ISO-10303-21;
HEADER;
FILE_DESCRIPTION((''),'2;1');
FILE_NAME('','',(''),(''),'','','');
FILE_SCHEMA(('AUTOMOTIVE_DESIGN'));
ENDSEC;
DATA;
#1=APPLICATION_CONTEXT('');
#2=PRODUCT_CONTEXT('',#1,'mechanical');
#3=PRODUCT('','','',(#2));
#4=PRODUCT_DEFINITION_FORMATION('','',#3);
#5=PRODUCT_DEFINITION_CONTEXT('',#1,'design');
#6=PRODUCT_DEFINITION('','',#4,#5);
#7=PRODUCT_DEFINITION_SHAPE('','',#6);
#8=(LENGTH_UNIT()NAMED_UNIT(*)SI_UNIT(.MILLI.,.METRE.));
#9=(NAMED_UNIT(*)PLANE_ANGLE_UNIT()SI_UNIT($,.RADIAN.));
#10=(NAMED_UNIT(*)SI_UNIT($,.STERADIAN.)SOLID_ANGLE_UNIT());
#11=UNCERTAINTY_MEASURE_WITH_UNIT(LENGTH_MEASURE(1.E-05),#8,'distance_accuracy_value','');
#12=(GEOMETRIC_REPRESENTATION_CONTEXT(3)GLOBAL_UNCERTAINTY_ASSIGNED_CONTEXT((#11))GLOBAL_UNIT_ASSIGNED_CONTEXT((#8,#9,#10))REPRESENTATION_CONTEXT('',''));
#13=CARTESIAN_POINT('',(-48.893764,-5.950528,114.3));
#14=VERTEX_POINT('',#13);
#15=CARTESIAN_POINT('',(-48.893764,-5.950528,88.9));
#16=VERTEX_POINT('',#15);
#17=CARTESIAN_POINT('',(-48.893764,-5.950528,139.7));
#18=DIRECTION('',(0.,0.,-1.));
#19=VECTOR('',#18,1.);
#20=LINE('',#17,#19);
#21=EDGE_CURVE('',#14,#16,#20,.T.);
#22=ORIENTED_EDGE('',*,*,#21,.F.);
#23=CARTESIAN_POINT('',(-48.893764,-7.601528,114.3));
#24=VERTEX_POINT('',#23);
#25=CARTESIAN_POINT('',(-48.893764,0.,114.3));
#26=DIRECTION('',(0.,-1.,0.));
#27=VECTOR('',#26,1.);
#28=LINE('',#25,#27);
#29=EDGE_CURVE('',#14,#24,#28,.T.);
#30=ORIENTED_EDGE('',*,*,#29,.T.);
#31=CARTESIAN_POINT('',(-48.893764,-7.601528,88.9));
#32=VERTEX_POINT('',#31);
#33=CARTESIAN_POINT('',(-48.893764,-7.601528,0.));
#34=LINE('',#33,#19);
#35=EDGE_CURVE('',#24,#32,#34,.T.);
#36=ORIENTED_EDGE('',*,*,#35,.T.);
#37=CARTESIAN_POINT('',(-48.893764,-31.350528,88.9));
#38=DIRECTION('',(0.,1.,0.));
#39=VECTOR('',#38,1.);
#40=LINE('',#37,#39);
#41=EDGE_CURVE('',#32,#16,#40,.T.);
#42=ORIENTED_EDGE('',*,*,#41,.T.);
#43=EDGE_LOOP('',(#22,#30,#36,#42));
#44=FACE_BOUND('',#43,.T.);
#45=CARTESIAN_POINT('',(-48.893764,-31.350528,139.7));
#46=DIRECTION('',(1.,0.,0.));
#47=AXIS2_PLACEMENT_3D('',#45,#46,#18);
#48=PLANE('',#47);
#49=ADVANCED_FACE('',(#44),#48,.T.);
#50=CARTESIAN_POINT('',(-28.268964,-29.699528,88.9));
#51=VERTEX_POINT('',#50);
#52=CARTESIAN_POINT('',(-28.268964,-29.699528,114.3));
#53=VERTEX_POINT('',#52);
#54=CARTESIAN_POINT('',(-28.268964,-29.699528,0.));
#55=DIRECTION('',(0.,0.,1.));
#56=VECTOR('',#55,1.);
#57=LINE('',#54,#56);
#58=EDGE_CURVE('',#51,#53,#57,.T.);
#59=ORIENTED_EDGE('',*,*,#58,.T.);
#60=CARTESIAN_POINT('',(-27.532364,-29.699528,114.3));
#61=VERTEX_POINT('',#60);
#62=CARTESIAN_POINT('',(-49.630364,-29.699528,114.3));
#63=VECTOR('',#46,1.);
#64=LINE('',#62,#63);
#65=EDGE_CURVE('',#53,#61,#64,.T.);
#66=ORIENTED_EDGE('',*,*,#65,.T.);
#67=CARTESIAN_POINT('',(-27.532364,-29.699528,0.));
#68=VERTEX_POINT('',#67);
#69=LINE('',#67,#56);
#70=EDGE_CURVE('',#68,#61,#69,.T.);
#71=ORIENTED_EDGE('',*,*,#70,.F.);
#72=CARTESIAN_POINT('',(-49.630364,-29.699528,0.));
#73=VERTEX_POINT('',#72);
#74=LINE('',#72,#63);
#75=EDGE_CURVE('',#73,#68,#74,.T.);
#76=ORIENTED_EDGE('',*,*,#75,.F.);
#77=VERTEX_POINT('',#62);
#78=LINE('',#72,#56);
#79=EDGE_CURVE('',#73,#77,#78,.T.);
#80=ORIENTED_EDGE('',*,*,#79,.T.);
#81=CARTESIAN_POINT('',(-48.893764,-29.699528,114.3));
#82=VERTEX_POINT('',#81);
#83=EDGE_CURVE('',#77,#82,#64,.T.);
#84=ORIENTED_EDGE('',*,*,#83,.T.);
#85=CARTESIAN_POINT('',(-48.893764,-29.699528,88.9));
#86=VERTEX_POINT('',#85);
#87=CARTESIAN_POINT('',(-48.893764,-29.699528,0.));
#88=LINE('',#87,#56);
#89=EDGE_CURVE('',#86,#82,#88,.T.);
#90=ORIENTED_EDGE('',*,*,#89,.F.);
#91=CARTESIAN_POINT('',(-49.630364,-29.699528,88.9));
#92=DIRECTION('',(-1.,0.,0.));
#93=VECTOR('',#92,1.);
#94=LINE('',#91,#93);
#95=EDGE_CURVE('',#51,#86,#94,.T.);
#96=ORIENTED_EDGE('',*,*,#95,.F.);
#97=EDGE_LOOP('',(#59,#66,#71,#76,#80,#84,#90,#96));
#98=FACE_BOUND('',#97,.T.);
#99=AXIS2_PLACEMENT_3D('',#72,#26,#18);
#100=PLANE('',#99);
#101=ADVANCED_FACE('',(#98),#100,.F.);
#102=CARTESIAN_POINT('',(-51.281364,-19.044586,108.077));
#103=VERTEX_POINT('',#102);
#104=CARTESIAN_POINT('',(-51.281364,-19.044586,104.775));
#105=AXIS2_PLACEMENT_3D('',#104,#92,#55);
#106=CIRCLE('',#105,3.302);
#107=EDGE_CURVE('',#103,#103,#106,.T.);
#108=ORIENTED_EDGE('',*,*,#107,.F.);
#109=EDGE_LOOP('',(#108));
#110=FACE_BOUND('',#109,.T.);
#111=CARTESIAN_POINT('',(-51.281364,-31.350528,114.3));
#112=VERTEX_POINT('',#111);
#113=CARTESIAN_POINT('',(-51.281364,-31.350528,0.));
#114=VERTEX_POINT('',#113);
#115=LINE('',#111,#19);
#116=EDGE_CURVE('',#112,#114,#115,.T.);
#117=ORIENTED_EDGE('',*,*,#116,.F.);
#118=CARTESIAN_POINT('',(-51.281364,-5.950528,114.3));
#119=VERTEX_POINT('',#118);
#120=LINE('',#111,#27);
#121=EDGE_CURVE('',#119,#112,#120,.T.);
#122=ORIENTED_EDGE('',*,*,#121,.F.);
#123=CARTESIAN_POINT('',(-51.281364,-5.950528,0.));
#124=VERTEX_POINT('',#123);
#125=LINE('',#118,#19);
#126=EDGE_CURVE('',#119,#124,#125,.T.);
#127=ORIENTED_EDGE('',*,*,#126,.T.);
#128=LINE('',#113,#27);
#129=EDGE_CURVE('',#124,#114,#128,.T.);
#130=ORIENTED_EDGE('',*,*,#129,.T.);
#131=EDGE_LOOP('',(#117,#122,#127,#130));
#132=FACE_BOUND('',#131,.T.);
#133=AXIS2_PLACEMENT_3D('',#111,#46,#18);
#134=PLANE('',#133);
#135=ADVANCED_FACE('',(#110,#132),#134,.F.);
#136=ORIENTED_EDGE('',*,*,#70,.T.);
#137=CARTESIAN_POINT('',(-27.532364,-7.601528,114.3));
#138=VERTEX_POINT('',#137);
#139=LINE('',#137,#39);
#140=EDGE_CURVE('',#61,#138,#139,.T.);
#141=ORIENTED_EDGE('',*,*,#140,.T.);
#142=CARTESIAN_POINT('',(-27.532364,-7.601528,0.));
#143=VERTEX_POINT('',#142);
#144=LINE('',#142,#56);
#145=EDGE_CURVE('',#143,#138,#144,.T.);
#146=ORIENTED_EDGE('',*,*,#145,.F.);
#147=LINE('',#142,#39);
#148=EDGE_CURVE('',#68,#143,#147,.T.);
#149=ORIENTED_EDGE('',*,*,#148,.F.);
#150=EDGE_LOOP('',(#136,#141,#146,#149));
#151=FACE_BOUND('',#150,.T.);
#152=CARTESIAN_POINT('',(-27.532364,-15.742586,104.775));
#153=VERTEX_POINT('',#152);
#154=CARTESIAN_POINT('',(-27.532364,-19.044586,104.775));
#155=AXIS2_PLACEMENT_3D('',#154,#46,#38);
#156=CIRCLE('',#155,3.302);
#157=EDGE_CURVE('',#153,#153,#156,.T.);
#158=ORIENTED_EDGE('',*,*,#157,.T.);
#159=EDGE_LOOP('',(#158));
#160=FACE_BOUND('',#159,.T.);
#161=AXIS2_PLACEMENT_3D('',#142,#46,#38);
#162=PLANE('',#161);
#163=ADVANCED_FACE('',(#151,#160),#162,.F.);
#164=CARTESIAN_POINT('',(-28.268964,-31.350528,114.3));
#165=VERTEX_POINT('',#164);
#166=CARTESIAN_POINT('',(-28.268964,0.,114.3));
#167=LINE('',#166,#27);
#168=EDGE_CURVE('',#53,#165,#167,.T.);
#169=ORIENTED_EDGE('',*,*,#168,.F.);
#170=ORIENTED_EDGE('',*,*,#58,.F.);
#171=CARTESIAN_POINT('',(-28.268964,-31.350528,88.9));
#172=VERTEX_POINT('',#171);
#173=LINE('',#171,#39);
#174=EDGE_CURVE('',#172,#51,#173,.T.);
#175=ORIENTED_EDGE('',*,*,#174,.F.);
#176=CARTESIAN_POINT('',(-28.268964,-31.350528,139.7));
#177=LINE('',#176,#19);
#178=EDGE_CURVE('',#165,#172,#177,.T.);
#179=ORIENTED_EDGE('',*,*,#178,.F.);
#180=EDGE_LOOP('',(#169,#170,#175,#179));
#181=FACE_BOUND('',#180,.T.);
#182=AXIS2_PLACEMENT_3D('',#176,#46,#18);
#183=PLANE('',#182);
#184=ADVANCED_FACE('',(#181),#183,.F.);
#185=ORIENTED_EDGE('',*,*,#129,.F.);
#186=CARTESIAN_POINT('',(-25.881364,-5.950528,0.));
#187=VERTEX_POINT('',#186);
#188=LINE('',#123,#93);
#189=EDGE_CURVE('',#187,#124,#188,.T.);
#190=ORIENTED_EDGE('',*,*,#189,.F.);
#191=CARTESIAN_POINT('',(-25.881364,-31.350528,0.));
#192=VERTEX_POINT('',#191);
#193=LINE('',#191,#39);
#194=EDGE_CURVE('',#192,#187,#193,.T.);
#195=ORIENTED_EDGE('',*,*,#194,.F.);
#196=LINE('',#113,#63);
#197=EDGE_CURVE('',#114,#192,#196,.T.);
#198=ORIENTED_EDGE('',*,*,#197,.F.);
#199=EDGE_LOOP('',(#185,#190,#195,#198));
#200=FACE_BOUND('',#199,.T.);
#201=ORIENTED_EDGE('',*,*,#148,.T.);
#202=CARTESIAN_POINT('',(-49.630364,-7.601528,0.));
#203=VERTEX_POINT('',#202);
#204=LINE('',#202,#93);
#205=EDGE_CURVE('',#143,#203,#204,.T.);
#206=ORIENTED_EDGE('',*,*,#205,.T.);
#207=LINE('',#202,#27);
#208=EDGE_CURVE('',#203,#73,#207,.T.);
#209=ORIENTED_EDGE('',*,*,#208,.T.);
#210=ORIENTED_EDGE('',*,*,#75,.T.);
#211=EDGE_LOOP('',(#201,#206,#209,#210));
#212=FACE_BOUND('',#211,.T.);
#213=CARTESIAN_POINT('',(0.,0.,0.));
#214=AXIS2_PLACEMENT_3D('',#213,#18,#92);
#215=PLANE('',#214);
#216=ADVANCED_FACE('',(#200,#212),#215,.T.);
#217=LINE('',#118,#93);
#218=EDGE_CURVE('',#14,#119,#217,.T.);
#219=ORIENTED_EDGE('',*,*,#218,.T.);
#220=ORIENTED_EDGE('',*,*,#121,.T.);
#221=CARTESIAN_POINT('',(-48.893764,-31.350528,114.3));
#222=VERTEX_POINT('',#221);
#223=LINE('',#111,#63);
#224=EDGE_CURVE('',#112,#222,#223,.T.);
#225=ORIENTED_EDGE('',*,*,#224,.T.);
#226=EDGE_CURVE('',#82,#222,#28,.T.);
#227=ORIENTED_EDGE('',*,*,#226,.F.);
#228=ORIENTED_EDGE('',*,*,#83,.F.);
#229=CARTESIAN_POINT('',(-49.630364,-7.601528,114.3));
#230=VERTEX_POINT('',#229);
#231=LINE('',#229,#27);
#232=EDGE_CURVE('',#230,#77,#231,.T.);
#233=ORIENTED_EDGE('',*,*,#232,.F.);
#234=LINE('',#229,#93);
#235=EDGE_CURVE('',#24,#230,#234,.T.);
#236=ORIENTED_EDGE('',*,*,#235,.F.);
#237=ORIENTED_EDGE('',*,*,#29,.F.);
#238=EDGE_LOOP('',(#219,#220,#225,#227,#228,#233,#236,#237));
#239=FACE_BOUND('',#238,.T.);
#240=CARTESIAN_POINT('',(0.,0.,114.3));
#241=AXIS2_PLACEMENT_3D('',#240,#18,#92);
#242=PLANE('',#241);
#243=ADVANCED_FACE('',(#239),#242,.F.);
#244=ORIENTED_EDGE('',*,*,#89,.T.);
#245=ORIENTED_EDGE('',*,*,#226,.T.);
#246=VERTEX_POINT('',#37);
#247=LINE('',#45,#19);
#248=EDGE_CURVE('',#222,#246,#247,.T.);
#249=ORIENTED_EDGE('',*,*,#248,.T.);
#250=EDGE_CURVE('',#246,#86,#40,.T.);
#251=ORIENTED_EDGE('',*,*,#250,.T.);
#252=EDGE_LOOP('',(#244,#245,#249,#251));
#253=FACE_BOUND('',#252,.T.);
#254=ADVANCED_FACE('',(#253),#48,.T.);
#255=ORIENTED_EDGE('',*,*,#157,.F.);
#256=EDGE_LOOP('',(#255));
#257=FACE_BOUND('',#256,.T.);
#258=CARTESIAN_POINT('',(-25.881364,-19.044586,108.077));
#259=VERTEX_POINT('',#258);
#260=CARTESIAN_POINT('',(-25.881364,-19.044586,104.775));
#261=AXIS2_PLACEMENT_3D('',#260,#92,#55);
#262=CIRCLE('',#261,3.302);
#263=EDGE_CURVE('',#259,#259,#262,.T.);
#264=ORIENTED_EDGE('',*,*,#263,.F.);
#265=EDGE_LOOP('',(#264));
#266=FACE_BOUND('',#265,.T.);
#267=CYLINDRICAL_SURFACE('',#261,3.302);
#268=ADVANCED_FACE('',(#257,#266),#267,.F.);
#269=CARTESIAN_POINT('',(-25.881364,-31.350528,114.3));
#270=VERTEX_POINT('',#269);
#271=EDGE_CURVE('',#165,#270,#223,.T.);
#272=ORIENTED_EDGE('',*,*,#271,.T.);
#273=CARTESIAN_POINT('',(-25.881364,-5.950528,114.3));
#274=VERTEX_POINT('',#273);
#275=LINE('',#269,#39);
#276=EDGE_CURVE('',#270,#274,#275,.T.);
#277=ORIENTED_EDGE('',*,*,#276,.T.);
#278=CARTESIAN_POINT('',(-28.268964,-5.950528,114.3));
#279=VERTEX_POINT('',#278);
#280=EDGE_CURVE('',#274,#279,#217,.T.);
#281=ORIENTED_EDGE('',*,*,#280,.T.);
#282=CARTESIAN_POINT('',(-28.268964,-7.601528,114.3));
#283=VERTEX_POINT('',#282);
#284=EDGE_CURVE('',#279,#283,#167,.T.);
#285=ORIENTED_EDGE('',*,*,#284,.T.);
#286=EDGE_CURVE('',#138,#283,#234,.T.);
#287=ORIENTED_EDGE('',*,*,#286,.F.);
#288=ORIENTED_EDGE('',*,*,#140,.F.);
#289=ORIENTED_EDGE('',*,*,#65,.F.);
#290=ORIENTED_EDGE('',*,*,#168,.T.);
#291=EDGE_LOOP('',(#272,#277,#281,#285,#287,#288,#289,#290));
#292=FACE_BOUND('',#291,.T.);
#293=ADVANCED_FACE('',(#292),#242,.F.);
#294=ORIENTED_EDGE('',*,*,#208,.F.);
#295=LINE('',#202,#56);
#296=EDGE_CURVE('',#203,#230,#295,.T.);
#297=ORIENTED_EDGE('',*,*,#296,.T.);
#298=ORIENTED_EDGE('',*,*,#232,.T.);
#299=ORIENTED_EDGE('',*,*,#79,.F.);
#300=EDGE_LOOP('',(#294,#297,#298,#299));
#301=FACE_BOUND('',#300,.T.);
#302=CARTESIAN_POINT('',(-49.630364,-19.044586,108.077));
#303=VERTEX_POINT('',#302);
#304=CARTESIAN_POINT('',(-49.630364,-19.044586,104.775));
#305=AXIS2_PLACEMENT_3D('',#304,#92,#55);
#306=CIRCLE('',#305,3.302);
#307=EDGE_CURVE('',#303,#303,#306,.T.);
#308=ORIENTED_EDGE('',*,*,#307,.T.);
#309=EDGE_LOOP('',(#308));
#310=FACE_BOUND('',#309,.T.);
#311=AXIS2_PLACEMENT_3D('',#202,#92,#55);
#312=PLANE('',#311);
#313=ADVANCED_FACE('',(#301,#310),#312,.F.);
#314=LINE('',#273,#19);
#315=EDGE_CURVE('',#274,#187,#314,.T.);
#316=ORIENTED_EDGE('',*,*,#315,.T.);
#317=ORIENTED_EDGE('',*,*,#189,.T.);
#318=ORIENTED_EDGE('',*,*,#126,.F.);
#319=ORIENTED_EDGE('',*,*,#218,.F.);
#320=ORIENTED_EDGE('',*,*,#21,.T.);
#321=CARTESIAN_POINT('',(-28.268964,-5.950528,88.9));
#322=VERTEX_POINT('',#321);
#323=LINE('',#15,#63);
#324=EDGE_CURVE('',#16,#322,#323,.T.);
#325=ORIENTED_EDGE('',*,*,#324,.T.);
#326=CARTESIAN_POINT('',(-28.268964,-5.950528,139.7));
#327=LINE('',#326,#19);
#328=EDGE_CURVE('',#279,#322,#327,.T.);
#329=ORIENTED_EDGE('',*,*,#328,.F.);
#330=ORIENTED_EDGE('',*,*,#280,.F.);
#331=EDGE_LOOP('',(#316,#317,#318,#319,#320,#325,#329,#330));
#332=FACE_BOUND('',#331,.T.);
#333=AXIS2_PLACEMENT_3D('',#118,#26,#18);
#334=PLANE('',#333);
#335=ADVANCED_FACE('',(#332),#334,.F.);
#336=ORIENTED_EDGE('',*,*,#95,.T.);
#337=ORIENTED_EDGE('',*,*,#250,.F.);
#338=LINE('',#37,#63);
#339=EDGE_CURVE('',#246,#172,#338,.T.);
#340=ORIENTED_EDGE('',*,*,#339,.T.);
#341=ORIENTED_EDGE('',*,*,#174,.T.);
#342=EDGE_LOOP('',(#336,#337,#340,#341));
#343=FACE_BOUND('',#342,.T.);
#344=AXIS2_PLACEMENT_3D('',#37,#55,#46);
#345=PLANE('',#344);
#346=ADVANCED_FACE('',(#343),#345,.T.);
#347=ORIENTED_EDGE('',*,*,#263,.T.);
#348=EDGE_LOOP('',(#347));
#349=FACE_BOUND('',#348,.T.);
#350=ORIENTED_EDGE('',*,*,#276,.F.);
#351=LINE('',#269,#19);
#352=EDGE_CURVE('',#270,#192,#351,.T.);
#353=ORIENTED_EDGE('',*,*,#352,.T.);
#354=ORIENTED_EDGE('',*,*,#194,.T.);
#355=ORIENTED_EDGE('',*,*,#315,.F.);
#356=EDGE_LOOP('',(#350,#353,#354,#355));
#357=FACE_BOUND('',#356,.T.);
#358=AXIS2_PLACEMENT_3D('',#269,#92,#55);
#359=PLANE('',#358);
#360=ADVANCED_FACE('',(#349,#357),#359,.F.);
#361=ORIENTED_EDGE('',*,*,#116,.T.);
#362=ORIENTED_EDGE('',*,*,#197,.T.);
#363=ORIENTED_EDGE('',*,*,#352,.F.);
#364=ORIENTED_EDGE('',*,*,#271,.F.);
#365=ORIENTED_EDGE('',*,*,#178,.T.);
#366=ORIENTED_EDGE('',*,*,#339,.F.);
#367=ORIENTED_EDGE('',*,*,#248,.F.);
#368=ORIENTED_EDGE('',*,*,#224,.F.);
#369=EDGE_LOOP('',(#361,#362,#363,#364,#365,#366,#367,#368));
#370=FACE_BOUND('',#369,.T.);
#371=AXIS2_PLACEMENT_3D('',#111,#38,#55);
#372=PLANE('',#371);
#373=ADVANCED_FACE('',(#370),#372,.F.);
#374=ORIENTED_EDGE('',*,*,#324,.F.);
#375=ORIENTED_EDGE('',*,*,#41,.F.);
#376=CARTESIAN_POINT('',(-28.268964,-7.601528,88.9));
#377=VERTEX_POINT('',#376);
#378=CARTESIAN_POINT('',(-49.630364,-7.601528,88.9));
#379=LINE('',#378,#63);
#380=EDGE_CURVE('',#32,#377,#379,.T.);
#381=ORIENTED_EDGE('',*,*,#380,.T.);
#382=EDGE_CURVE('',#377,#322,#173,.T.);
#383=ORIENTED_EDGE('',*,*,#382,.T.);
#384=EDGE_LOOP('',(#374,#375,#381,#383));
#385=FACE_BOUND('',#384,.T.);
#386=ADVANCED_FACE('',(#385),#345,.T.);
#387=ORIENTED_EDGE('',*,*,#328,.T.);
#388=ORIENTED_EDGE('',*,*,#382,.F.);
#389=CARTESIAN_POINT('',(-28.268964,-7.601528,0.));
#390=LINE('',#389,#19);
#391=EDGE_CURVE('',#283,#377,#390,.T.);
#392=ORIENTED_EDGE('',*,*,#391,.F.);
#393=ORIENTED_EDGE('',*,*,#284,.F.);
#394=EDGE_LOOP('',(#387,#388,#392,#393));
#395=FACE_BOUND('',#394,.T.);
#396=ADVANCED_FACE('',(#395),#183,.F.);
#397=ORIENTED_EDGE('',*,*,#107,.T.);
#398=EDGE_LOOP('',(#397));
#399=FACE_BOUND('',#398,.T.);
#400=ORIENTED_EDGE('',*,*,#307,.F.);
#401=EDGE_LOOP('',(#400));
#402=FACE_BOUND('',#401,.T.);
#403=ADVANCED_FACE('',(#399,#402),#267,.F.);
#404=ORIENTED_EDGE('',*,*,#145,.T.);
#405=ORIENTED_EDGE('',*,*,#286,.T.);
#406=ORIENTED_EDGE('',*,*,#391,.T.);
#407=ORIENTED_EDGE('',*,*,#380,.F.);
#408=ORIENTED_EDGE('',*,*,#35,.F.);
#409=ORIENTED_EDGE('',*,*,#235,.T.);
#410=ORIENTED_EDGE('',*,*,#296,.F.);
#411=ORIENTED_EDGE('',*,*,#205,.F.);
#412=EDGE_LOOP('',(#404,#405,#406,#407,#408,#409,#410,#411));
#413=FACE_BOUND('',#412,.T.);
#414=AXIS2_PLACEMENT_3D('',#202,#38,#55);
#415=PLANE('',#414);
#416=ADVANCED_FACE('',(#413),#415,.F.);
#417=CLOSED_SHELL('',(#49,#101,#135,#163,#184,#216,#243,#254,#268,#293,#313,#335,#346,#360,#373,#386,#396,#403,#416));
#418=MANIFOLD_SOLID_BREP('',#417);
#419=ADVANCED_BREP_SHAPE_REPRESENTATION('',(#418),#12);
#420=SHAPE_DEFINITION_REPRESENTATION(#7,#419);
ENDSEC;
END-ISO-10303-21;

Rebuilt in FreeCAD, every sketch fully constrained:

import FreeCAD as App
import Part
import Sketcher
from FreeCAD import Vector
Q = App.Units.Quantity

doc = App.newDocument("Part")
body = doc.addObject("PartDesign::Body", "Body")

# Sketch on XY plane
sketch1 = body.newObject("Sketcher::SketchObject", "Sketch")
sketch1.AttachmentSupport = (doc.getObject("XY_Plane"), [""])
sketch1.MapMode = "FlatFace"
sketch1.addGeometry(Part.LineSegment(Vector(-51, -6, 0), Vector(-51, -31, 0)), False)
sketch1.addGeometry(Part.LineSegment(Vector(-51, -31, 0), Vector(-26, -31, 0)), False)
sketch1.addGeometry(Part.LineSegment(Vector(-26, -31, 0), Vector(-26, -6, 0)), False)
sketch1.addGeometry(Part.LineSegment(Vector(-26, -6, 0), Vector(-51, -6, 0)), False)
sketch1.addConstraint(Sketcher.Constraint("Coincident", 0, 2, 1, 1))
sketch1.addConstraint(Sketcher.Constraint("Coincident", 1, 2, 2, 1))
sketch1.addConstraint(Sketcher.Constraint("Coincident", 2, 2, 3, 1))
sketch1.addConstraint(Sketcher.Constraint("Coincident", 3, 2, 0, 1))
sketch1.addConstraint(Sketcher.Constraint("Vertical", 0))
sketch1.addConstraint(Sketcher.Constraint("Horizontal", 1))
sketch1.addConstraint(Sketcher.Constraint("Vertical", 2))
sketch1.addConstraint(Sketcher.Constraint("Horizontal", 3))
sketch1.addConstraint(Sketcher.Constraint("Equal", 3, 0))
sketch1.addConstraint(Sketcher.Constraint("DistanceX", 1, 1, 1, 2, Q("1 in")))
sketch1.addConstraint(Sketcher.Constraint("DistanceY", 0, 2, -1, 1, Q("31.350528 mm")))
sketch1.addConstraint(Sketcher.Constraint("DistanceX", 0, 2, -1, 1, Q("51.281364 mm")))
pad1 = body.newObject("PartDesign::Pad", "Pad")
pad1.Profile = sketch1
pad1.Length = Q("4.5 in")

# Sketch on XY plane
sketch2 = body.newObject("Sketcher::SketchObject", "Sketch001")
sketch2.AttachmentSupport = (doc.getObject("XY_Plane"), [""])
sketch2.MapMode = "FlatFace"
sketch2.AttachmentOffset = App.Placement(Vector(0, 0, 4.5 * 25.4), App.Rotation())
sketch2.addGeometry(Part.LineSegment(Vector(-50, -8, 0), Vector(-50, -30, 0)), False)
sketch2.addGeometry(Part.LineSegment(Vector(-50, -30, 0), Vector(-28, -30, 0)), False)
sketch2.addGeometry(Part.LineSegment(Vector(-28, -30, 0), Vector(-28, -8, 0)), False)
sketch2.addGeometry(Part.LineSegment(Vector(-28, -8, 0), Vector(-50, -8, 0)), False)
sketch2.addConstraint(Sketcher.Constraint("Coincident", 0, 2, 1, 1))
sketch2.addConstraint(Sketcher.Constraint("Coincident", 1, 2, 2, 1))
sketch2.addConstraint(Sketcher.Constraint("Coincident", 2, 2, 3, 1))
sketch2.addConstraint(Sketcher.Constraint("Coincident", 3, 2, 0, 1))
sketch2.addConstraint(Sketcher.Constraint("Vertical", 0))
sketch2.addConstraint(Sketcher.Constraint("Horizontal", 1))
sketch2.addConstraint(Sketcher.Constraint("Vertical", 2))
sketch2.addConstraint(Sketcher.Constraint("Horizontal", 3))
sketch2.addConstraint(Sketcher.Constraint("Equal", 3, 0))
sketch2.addConstraint(Sketcher.Constraint("DistanceX", 1, 1, 1, 2, Q("0.87 in")))
sketch2.addConstraint(Sketcher.Constraint("DistanceY", 0, 2, -1, 1, Q("29.699528 mm")))
sketch2.addConstraint(Sketcher.Constraint("DistanceX", 0, 2, -1, 1, Q("49.630364 mm")))
pocket1 = body.newObject("PartDesign::Pocket", "Pocket")
pocket1.Profile = sketch2
pocket1.Type = "ThroughAll"

# Sketch on XZ plane
sketch3 = body.newObject("Sketcher::SketchObject", "Sketch002")
sketch3.AttachmentSupport = (doc.getObject("XZ_Plane"), [""])
sketch3.MapMode = "FlatFace"
sketch3.AttachmentOffset = App.Placement(Vector(0, 0, 5.950528), App.Rotation())
sketch3.addGeometry(Part.LineSegment(Vector(-49, 89, 0), Vector(-49, 140, 0)), False)
sketch3.addGeometry(Part.LineSegment(Vector(-49, 140, 0), Vector(-28, 140, 0)), False)
sketch3.addGeometry(Part.LineSegment(Vector(-28, 140, 0), Vector(-28, 89, 0)), False)
sketch3.addGeometry(Part.LineSegment(Vector(-28, 89, 0), Vector(-49, 89, 0)), False)
sketch3.addConstraint(Sketcher.Constraint("Coincident", 0, 2, 1, 1))
sketch3.addConstraint(Sketcher.Constraint("Coincident", 1, 2, 2, 1))
sketch3.addConstraint(Sketcher.Constraint("Coincident", 2, 2, 3, 1))
sketch3.addConstraint(Sketcher.Constraint("Coincident", 3, 2, 0, 1))
sketch3.addConstraint(Sketcher.Constraint("Vertical", 0))
sketch3.addConstraint(Sketcher.Constraint("Horizontal", 1))
sketch3.addConstraint(Sketcher.Constraint("Vertical", 2))
sketch3.addConstraint(Sketcher.Constraint("Horizontal", 3))
sketch3.addConstraint(Sketcher.Constraint("DistanceY", 0, 1, 0, 2, Q("2 in")))
sketch3.addConstraint(Sketcher.Constraint("DistanceY", -1, 1, 0, 2, Q("5.5 in")))
sketch3.addConstraint(Sketcher.Constraint("DistanceX", 1, 1, 1, 2, Q("0.812 in")))
sketch3.addConstraint(Sketcher.Constraint("DistanceX", 0, 2, -1, 1, Q("48.893764 mm")))
pocket2 = body.newObject("PartDesign::Pocket", "Pocket001")
pocket2.Profile = sketch3
pocket2.Type = "ThroughAll"
pocket2.Reversed = True

# Sketch on YZ plane
sketch4 = body.newObject("Sketcher::SketchObject", "Sketch003")
sketch4.AttachmentSupport = (doc.getObject("YZ_Plane"), [""])
sketch4.MapMode = "FlatFace"
sketch4.AttachmentOffset = App.Placement(Vector(0, 0, -51.281364), App.Rotation())
sketch4.addGeometry(Part.Circle(Vector(-19, 104.8, 0), Vector(0, 0, 1), 3.3), False)
sketch4.addConstraint(Sketcher.Constraint("Diameter", 0, Q("0.26 in")))
sketch4.addConstraint(Sketcher.Constraint("DistanceY", -1, 1, 0, 3, Q("4.125 in")))
sketch4.addConstraint(Sketcher.Constraint("DistanceX", 0, 3, -1, 1, Q("19.044586 mm")))
pocket3 = body.newObject("PartDesign::Pocket", "Pocket002")
pocket3.Profile = sketch4
pocket3.Type = "ThroughAll"
pocket3.Reversed = True

doc.recompute()
